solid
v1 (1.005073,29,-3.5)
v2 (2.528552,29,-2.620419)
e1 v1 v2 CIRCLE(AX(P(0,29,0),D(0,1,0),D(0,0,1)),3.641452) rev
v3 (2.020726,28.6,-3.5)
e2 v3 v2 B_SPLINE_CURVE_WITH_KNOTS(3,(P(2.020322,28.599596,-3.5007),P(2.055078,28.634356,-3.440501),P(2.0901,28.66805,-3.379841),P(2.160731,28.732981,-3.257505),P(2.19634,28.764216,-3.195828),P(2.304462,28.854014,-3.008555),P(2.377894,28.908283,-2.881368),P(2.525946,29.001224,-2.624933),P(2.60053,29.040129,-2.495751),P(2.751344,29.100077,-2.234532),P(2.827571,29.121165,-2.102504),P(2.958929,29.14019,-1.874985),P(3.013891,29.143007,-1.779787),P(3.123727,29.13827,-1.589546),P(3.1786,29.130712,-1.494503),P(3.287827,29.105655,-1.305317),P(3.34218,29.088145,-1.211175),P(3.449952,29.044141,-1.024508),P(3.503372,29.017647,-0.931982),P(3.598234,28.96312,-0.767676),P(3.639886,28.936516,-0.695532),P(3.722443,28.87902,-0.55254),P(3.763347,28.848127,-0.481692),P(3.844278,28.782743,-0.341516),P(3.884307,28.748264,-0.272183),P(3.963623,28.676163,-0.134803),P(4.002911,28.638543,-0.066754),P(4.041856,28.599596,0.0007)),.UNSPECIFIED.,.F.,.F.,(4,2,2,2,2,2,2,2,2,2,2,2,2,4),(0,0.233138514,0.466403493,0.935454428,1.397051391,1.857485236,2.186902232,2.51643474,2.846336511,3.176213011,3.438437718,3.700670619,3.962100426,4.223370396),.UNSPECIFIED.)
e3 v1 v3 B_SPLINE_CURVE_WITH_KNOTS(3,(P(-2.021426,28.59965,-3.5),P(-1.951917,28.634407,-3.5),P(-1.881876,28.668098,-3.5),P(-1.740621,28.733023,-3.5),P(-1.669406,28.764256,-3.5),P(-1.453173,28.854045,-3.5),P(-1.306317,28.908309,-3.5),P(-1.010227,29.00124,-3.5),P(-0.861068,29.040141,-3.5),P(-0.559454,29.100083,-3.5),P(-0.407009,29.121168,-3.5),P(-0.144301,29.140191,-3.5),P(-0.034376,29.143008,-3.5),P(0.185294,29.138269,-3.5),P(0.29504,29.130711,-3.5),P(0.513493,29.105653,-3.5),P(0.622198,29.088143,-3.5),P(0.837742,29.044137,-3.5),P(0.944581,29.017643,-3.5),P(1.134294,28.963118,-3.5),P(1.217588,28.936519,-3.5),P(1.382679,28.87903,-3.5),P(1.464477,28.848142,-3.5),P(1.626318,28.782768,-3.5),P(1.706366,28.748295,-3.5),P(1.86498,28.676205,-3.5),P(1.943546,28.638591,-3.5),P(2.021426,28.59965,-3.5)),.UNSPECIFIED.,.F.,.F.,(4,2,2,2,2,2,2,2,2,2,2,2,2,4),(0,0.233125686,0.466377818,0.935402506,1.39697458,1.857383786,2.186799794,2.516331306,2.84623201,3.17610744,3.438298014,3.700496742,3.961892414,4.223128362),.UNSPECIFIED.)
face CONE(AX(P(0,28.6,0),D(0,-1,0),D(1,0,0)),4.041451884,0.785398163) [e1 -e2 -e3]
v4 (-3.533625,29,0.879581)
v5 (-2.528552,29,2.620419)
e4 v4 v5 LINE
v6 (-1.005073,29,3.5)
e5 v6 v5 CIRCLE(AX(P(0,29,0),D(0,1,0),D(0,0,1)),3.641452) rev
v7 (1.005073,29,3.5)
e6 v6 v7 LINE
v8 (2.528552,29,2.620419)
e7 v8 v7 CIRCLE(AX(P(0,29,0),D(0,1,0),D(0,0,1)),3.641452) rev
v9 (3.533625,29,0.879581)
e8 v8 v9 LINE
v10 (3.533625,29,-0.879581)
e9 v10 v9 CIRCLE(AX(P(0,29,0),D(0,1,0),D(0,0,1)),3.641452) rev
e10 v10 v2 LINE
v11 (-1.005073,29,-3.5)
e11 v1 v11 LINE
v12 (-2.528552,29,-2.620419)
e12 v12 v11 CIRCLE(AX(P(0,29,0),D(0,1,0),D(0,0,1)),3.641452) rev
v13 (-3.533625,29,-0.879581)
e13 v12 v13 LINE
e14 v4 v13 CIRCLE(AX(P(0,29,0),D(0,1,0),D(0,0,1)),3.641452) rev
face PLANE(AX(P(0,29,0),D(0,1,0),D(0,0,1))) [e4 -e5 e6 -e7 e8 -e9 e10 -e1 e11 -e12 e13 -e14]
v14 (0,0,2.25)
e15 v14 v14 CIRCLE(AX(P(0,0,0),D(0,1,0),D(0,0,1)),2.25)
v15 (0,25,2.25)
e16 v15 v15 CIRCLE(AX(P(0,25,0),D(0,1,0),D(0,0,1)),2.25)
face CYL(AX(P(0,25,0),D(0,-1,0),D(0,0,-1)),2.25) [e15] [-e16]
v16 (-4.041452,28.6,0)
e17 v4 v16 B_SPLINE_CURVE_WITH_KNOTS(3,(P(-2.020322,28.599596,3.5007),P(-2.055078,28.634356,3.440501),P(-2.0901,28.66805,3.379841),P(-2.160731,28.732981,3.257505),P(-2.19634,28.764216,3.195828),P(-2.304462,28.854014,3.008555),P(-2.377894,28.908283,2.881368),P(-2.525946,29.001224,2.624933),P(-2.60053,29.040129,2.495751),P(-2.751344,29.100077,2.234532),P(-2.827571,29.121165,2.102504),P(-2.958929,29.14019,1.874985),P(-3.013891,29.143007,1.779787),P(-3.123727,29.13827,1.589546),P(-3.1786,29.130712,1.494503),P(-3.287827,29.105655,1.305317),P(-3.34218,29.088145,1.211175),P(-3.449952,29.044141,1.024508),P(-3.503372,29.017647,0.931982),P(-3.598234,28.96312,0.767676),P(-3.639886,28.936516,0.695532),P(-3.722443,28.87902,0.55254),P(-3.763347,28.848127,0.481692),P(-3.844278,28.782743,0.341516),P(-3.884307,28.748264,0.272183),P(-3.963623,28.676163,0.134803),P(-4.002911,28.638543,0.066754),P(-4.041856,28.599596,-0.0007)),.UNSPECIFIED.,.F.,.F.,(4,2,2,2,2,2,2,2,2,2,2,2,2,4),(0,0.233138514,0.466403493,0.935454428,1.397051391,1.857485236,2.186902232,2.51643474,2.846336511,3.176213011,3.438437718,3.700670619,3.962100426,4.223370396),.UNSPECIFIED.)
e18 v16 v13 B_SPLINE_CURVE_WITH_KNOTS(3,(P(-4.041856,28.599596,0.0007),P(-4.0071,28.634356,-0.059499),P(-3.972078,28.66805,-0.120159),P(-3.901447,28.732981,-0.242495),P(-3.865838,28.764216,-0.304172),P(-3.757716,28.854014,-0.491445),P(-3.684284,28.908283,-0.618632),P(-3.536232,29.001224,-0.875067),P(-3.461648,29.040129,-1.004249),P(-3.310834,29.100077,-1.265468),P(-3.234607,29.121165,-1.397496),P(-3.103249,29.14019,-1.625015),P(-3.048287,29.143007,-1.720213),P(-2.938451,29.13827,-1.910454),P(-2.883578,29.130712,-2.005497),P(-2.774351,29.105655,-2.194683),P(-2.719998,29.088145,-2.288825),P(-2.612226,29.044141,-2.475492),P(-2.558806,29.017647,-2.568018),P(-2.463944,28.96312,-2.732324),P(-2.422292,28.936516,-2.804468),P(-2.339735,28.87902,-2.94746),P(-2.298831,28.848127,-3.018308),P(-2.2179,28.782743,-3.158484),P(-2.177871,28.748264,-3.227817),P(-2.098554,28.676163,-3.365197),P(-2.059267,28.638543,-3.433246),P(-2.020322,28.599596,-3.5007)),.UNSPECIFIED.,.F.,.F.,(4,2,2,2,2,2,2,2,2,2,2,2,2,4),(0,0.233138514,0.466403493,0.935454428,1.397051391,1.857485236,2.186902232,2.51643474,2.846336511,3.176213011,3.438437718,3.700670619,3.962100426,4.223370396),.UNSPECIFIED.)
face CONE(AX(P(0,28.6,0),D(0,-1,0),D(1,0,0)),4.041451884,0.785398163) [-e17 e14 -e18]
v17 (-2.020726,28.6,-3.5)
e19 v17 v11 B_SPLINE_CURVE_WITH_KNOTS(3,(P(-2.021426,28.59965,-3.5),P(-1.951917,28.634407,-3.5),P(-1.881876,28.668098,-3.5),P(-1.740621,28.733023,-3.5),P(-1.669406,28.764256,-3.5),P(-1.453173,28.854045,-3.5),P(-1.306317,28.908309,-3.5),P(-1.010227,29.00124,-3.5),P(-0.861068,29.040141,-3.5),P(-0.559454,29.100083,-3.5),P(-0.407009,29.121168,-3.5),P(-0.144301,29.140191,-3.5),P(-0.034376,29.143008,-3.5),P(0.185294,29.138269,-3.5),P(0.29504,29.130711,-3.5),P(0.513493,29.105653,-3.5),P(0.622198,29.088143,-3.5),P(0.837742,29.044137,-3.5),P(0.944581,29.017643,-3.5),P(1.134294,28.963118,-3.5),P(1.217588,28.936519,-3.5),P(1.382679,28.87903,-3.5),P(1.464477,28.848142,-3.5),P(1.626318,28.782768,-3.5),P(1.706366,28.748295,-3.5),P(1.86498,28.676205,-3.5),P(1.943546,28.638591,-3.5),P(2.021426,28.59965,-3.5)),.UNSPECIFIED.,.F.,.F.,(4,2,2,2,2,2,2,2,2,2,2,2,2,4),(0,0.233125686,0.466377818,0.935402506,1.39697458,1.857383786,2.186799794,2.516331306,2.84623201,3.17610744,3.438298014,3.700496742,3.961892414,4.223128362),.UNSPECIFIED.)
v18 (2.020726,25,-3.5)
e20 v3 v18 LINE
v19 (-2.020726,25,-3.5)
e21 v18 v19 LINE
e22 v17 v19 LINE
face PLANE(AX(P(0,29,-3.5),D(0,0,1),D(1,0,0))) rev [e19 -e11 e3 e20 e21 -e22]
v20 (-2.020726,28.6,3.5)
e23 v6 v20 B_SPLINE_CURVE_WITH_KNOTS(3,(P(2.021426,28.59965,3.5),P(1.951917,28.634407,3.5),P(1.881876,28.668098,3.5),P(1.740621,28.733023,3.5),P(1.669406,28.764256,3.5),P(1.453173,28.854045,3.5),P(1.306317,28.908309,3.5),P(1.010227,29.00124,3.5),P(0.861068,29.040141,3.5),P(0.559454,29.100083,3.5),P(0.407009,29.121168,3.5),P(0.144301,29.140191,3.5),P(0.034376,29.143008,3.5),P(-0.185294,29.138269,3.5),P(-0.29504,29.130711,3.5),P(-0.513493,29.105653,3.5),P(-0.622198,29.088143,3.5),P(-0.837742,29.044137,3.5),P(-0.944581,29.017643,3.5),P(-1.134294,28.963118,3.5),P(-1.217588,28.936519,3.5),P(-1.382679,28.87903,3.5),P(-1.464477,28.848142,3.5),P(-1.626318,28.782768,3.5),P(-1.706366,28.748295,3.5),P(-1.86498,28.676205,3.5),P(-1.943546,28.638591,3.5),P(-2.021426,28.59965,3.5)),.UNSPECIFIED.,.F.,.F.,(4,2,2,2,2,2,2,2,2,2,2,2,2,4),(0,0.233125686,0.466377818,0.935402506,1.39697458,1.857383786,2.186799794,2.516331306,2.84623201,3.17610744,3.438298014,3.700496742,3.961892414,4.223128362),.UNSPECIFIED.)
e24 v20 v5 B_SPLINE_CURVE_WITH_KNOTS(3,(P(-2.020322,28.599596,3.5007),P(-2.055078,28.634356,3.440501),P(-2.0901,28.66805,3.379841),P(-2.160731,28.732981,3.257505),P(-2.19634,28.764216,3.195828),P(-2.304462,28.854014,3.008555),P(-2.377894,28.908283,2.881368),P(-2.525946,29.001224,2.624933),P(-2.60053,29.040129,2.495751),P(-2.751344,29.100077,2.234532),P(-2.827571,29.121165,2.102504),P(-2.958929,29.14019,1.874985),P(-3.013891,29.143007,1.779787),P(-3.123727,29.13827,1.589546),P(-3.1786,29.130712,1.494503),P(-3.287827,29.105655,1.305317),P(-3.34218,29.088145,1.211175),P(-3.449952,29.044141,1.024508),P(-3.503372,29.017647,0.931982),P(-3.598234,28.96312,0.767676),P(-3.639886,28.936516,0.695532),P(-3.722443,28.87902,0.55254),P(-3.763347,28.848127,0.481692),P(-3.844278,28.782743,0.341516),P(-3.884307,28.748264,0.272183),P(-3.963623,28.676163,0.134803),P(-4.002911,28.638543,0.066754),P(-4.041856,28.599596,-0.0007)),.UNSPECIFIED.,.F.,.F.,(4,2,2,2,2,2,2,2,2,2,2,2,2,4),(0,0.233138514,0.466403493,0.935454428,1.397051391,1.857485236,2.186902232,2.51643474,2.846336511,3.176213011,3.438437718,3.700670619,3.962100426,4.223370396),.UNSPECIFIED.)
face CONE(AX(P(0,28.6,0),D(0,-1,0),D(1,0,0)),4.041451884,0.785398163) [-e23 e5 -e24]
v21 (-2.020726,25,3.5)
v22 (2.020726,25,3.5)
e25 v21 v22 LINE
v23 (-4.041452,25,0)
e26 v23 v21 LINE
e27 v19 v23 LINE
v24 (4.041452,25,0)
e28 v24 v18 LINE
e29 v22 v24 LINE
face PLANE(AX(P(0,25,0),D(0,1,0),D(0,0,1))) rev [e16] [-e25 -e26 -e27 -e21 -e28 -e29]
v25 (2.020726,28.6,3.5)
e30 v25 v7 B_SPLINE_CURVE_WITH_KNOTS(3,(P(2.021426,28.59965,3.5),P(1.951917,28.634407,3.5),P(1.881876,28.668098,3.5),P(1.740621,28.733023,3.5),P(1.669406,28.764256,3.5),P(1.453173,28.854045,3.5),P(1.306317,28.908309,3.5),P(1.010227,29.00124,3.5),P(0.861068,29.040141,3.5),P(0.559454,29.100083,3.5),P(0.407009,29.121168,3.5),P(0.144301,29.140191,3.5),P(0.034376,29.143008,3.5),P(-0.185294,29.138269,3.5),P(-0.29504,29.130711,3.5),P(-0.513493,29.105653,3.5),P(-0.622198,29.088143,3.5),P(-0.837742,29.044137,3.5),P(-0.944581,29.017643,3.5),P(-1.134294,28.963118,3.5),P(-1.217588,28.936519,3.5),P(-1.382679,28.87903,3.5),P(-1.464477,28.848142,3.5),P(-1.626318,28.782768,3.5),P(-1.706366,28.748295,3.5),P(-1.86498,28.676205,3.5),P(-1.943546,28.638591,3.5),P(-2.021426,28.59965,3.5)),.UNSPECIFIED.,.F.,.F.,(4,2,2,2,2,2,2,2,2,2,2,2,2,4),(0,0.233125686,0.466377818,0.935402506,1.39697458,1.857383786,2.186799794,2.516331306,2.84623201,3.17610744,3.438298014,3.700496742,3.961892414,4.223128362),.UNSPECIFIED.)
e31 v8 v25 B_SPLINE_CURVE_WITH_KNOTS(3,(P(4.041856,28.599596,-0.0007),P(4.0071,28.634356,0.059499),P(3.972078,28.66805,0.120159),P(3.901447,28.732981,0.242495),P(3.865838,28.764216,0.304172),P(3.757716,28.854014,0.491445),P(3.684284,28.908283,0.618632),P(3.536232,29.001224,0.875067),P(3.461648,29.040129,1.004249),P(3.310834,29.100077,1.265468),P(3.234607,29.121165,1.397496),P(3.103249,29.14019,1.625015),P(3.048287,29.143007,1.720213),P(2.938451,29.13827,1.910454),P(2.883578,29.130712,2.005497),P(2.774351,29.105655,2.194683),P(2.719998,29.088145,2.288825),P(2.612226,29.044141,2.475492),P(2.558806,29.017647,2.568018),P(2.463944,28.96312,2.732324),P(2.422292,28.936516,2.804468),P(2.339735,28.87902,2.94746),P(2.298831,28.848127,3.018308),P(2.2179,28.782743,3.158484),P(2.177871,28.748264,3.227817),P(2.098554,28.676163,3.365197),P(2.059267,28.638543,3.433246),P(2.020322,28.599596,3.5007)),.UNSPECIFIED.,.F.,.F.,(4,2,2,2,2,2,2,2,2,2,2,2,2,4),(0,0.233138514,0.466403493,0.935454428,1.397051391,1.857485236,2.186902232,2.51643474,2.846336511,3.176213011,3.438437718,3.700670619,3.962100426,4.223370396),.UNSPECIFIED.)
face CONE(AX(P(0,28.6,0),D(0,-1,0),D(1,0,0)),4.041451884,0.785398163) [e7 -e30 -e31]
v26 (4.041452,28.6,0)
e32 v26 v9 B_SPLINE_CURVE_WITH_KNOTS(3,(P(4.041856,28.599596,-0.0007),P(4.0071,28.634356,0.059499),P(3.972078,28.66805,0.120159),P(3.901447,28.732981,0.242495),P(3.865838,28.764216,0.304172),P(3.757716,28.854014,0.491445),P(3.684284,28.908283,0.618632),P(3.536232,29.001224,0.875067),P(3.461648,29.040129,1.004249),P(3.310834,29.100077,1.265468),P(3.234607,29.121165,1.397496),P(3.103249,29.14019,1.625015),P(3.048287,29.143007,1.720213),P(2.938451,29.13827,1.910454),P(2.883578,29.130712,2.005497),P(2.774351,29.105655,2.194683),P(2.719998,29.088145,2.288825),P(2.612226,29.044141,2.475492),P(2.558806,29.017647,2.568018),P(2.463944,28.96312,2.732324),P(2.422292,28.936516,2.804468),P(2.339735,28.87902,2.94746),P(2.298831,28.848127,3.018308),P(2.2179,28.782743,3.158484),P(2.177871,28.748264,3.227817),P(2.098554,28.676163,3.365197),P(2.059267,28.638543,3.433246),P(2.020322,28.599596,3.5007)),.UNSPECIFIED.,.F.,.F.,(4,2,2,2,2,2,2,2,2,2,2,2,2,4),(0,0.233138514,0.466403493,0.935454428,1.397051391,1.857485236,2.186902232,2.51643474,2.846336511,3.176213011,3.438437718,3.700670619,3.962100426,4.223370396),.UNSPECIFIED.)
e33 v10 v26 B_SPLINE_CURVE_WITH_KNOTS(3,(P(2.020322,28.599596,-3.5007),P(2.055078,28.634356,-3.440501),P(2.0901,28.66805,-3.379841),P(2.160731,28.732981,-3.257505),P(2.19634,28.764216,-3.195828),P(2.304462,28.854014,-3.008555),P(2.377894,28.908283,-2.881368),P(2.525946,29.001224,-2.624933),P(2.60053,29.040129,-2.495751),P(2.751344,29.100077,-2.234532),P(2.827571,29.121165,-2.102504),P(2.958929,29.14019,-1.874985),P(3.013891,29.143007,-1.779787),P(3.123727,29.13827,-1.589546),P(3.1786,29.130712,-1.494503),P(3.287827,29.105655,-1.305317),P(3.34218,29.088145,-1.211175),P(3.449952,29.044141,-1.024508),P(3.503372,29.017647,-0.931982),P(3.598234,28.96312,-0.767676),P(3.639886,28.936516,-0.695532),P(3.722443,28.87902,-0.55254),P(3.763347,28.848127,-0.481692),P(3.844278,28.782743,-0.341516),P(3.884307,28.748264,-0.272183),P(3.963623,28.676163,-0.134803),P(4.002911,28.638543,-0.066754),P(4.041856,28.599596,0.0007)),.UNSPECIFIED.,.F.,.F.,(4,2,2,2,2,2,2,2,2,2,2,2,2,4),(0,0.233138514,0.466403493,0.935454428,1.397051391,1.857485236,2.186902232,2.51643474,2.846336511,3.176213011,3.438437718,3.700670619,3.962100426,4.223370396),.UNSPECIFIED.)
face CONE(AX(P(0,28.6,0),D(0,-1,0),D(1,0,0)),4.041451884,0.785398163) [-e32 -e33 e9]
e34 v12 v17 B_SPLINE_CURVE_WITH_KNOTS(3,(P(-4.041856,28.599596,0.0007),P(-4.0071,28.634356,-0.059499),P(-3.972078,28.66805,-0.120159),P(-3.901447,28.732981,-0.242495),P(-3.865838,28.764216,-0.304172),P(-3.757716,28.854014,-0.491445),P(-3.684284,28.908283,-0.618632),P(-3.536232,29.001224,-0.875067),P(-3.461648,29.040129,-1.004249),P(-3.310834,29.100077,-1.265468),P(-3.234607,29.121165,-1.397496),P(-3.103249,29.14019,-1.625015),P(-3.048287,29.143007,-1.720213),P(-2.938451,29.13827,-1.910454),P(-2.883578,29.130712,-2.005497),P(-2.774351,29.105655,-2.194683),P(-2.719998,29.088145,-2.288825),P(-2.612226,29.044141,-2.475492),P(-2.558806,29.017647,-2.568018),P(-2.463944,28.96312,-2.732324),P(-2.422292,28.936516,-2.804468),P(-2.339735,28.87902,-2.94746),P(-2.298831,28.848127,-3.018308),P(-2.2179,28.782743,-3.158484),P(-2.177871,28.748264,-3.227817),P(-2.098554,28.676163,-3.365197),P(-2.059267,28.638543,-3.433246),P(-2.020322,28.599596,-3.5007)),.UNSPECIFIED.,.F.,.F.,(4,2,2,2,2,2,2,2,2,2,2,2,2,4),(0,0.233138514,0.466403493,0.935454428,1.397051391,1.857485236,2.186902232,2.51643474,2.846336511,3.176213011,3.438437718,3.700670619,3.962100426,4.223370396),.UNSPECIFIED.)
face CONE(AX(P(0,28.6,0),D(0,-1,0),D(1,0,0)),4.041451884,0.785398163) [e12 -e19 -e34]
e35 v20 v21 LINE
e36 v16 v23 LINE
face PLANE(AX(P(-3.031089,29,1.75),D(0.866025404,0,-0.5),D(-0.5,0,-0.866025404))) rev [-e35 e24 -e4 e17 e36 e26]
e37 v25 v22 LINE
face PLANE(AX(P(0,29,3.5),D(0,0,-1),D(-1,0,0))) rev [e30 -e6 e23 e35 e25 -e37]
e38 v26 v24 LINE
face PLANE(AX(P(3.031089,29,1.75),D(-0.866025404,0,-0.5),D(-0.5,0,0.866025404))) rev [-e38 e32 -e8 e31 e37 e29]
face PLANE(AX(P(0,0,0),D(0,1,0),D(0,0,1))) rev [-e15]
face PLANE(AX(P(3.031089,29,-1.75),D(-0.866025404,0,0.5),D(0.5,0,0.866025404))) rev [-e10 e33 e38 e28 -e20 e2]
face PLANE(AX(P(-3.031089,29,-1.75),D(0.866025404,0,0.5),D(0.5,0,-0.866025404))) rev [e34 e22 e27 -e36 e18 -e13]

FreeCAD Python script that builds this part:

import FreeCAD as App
import Part
import Sketcher

V = App.Vector
Q = App.Units.Quantity

doc = App.newDocument("Part")
body = doc.addObject("PartDesign::Body", "Body")

# Sketch on XZ plane
sketch1 = body.newObject("Sketcher::SketchObject", "Sketch")
sketch1.AttachmentSupport = (doc.getObject("XZ_Plane"), [""])
sketch1.MapMode = "FlatFace"
sketch1.addGeometry(Part.Circle(V(0, 0, 0), V(0, 0, 1), 2.25), False)
sketch1.addConstraint(Sketcher.Constraint("Coincident", 0, 3, -1, 1))
sketch1.addConstraint(Sketcher.Constraint("Diameter", 0, Q("4.5 mm")))
pad1 = body.newObject("PartDesign::Pad", "Pad")
pad1.Profile = sketch1
pad1.Length = 25
pad1.Reversed = True

# Sketch on XZ plane
sketch2 = body.newObject("Sketcher::SketchObject", "Sketch001")
sketch2.AttachmentSupport = (doc.getObject("XZ_Plane"), [""])
sketch2.MapMode = "FlatFace"
sketch2.AttachmentOffset = App.Placement(V(0, 0, -25), App.Rotation())
sketch2.addGeometry(Part.LineSegment(V(-2.020726, -3.5, 0), V(-4.041452, 0, 0)), False)
sketch2.addGeometry(Part.LineSegment(V(-4.041452, 0, 0), V(-2.020726, 3.5, 0)), False)
sketch2.addGeometry(Part.LineSegment(V(-2.020726, 3.5, 0), V(2.020726, 3.5, 0)), False)
sketch2.addGeometry(Part.LineSegment(V(2.020726, 3.5, 0), V(4.041452, 0, 0)), False)
sketch2.addGeometry(Part.LineSegment(V(4.041452, 0, 0), V(2.020726, -3.5, 0)), False)
sketch2.addGeometry(Part.LineSegment(V(2.020726, -3.5, 0), V(-2.020726, -3.5, 0)), False)
sketch2.addConstraint(Sketcher.Constraint("Coincident", 0, 2, 1, 1))
sketch2.addConstraint(Sketcher.Constraint("Coincident", 1, 2, 2, 1))
sketch2.addConstraint(Sketcher.Constraint("Coincident", 2, 2, 3, 1))
sketch2.addConstraint(Sketcher.Constraint("Coincident", 3, 2, 4, 1))
sketch2.addConstraint(Sketcher.Constraint("Coincident", 4, 2, 5, 1))
sketch2.addConstraint(Sketcher.Constraint("Coincident", 5, 2, 0, 1))
sketch2.addConstraint(Sketcher.Constraint("Horizontal", 2))
sketch2.addConstraint(Sketcher.Constraint("Horizontal", 5))
sketch2.addConstraint(Sketcher.Constraint("Symmetric", 0, 2, 3, 2, -1, 1))
sketch2.addConstraint(Sketcher.Constraint("Symmetric", 1, 2, 4, 2, -1, 1))
sketch2.addConstraint(Sketcher.Constraint("PointOnObject", 0, 2, -1))
sketch2.addConstraint(Sketcher.Constraint("Parallel", 0, 3))
sketch2.addConstraint(Sketcher.Constraint("Vertical", 2, 2, 4, 2))
sketch2.addConstraint(Sketcher.Constraint("Angle", 0, Q("120 deg")))
sketch2.addConstraint(Sketcher.Constraint("DistanceY", 4, 2, 2, 2, Q("7 mm")))
sketch2.addConstraint(Sketcher.Constraint("DistanceX", 2, 1, 2, 2, Q("4.041452 mm")))
pad2 = body.newObject("PartDesign::Pad", "Pad001")
pad2.Profile = sketch2
pad2.Length = 4
pad2.Reversed = True

# Sketch on XY plane
sketch3 = body.newObject("Sketcher::SketchObject", "Sketch002")
sketch3.AttachmentSupport = (doc.getObject("XY_Plane"), [""])
sketch3.MapMode = "FlatFace"
sketch3.addGeometry(Part.LineSegment(V(4.041452, 29, 0), V(3.641452, 29, 0)), False)
sketch3.addGeometry(Part.LineSegment(V(3.641452, 29, 0), V(4.041452, 28.6, 0)), False)
sketch3.addGeometry(Part.LineSegment(V(4.041452, 28.6, 0), V(4.041452, 29, 0)), False)
sketch3.addConstraint(Sketcher.Constraint("Coincident", 0, 2, 1, 1))
sketch3.addConstraint(Sketcher.Constraint("Coincident", 1, 2, 2, 1))
sketch3.addConstraint(Sketcher.Constraint("Coincident", 2, 2, 0, 1))
sketch3.addConstraint(Sketcher.Constraint("Horizontal", 0))
sketch3.addConstraint(Sketcher.Constraint("Vertical", 2))
sketch3.addConstraint(Sketcher.Constraint("Equal", 0, 2))
sketch3.addConstraint(Sketcher.Constraint("DistanceX", 0, 2, 0, 1, Q("0.4 mm")))
sketch3.addConstraint(Sketcher.Constraint("DistanceY", -1, 1, 0, 2, Q("29 mm")))
sketch3.addConstraint(Sketcher.Constraint("DistanceX", -1, 1, 0, 2, Q("3.641452 mm")))
groove = body.newObject("PartDesign::Groove", "Groove")
groove.Profile = sketch3
groove.ReferenceAxis = (sketch3, ["V_Axis"])
groove.Angle = 360

doc.recompute()
